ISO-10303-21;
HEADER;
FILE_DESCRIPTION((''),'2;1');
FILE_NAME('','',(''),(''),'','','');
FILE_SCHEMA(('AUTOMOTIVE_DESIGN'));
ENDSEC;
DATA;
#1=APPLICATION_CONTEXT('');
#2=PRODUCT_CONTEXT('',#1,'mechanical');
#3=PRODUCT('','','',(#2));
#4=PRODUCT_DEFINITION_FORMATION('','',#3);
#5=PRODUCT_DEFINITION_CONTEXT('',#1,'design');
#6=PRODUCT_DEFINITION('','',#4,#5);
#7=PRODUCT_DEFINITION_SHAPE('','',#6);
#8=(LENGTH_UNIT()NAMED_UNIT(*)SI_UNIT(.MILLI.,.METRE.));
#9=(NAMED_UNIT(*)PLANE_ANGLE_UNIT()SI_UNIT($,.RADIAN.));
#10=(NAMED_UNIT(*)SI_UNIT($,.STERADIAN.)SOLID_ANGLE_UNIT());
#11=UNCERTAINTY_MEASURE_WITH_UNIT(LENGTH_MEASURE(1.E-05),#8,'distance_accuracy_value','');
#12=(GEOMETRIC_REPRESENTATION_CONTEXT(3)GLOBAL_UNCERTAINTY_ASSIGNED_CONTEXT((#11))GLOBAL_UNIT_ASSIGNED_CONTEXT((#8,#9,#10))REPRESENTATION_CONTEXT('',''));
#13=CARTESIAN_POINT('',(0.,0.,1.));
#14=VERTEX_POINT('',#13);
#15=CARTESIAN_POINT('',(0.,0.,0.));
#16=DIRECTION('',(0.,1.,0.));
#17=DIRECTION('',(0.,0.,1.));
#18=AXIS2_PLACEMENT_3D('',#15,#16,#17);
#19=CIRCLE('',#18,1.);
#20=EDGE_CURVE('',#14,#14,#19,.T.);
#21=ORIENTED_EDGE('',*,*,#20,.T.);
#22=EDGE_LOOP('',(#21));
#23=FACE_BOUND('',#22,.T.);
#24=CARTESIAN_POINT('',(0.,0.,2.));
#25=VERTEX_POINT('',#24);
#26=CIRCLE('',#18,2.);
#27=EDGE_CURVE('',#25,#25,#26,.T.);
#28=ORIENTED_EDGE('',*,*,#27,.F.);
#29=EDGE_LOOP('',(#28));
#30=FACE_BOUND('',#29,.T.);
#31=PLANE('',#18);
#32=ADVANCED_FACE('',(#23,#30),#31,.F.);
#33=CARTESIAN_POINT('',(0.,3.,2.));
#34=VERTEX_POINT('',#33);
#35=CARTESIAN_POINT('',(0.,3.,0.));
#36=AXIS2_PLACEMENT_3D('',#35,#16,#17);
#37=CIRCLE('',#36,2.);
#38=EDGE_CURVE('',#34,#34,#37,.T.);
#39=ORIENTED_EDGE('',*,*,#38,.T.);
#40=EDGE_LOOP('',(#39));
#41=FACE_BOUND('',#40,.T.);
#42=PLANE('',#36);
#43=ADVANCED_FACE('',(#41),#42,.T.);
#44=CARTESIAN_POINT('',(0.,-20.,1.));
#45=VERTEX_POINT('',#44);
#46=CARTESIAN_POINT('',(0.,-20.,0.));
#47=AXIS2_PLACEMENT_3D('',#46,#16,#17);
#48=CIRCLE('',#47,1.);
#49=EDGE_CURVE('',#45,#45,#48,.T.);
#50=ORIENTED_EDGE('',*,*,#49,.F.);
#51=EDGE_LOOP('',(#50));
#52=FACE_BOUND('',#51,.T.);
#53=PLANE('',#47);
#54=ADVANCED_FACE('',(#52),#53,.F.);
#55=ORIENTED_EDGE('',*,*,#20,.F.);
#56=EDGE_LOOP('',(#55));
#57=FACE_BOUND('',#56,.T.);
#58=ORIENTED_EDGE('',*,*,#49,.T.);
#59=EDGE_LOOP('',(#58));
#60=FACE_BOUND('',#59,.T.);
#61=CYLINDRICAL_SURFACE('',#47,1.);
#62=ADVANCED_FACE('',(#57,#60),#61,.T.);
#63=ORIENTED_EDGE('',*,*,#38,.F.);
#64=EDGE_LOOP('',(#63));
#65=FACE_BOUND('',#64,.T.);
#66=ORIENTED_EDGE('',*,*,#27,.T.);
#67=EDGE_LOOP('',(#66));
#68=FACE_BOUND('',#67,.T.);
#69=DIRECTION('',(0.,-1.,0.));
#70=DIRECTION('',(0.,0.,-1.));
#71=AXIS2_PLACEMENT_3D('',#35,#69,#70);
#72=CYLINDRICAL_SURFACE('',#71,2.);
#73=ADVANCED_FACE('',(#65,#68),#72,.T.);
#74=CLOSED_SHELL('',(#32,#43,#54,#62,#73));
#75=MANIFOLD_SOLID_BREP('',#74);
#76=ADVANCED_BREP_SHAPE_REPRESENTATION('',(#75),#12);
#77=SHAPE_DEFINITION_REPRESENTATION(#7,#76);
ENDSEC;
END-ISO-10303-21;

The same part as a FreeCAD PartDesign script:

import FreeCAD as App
import Part
import Sketcher

V = App.Vector
Q = App.Units.Quantity

doc = App.newDocument("Part")
body = doc.addObject("PartDesign::Body", "Body")

sketch1 = doc.addObject("Sketcher::SketchObject", "Sketch")
body.addObject(sketch1)
sketch1.AttachmentSupport = (doc.XZ_Plane, [""])
sketch1.MapMode = "FlatFace"
sketch1.addGeometry(Part.Circle(V(0, 0, 0), V(0, 0, 1), 2), False)
sketch1.addConstraint([
    Sketcher.Constraint("Coincident", 0, 3, -1, 1),
    Sketcher.Constraint("Diameter", 0, Q("4 mm")),
])
pad1 = doc.addObject("PartDesign::Pad", "Pad")
body.addObject(pad1)
pad1.Profile = sketch1
pad1.Length = 3
pad1.Reversed = True

sketch2 = doc.addObject("Sketcher::SketchObject", "Sketch001")
body.addObject(sketch2)
sketch2.AttachmentSupport = (doc.XZ_Plane, [""])
sketch2.MapMode = "FlatFace"
sketch2.addGeometry(Part.Circle(V(0, 0, 0), V(0, 0, 1), 1), False)
sketch2.addConstraint([
    Sketcher.Constraint("Coincident", 0, 3, -1, 1),
    Sketcher.Constraint("Diameter", 0, Q("2 mm")),
])
pad2 = doc.addObject("PartDesign::Pad", "Pad001")
body.addObject(pad2)
pad2.Profile = sketch2
pad2.Length = 20

doc.recompute()
